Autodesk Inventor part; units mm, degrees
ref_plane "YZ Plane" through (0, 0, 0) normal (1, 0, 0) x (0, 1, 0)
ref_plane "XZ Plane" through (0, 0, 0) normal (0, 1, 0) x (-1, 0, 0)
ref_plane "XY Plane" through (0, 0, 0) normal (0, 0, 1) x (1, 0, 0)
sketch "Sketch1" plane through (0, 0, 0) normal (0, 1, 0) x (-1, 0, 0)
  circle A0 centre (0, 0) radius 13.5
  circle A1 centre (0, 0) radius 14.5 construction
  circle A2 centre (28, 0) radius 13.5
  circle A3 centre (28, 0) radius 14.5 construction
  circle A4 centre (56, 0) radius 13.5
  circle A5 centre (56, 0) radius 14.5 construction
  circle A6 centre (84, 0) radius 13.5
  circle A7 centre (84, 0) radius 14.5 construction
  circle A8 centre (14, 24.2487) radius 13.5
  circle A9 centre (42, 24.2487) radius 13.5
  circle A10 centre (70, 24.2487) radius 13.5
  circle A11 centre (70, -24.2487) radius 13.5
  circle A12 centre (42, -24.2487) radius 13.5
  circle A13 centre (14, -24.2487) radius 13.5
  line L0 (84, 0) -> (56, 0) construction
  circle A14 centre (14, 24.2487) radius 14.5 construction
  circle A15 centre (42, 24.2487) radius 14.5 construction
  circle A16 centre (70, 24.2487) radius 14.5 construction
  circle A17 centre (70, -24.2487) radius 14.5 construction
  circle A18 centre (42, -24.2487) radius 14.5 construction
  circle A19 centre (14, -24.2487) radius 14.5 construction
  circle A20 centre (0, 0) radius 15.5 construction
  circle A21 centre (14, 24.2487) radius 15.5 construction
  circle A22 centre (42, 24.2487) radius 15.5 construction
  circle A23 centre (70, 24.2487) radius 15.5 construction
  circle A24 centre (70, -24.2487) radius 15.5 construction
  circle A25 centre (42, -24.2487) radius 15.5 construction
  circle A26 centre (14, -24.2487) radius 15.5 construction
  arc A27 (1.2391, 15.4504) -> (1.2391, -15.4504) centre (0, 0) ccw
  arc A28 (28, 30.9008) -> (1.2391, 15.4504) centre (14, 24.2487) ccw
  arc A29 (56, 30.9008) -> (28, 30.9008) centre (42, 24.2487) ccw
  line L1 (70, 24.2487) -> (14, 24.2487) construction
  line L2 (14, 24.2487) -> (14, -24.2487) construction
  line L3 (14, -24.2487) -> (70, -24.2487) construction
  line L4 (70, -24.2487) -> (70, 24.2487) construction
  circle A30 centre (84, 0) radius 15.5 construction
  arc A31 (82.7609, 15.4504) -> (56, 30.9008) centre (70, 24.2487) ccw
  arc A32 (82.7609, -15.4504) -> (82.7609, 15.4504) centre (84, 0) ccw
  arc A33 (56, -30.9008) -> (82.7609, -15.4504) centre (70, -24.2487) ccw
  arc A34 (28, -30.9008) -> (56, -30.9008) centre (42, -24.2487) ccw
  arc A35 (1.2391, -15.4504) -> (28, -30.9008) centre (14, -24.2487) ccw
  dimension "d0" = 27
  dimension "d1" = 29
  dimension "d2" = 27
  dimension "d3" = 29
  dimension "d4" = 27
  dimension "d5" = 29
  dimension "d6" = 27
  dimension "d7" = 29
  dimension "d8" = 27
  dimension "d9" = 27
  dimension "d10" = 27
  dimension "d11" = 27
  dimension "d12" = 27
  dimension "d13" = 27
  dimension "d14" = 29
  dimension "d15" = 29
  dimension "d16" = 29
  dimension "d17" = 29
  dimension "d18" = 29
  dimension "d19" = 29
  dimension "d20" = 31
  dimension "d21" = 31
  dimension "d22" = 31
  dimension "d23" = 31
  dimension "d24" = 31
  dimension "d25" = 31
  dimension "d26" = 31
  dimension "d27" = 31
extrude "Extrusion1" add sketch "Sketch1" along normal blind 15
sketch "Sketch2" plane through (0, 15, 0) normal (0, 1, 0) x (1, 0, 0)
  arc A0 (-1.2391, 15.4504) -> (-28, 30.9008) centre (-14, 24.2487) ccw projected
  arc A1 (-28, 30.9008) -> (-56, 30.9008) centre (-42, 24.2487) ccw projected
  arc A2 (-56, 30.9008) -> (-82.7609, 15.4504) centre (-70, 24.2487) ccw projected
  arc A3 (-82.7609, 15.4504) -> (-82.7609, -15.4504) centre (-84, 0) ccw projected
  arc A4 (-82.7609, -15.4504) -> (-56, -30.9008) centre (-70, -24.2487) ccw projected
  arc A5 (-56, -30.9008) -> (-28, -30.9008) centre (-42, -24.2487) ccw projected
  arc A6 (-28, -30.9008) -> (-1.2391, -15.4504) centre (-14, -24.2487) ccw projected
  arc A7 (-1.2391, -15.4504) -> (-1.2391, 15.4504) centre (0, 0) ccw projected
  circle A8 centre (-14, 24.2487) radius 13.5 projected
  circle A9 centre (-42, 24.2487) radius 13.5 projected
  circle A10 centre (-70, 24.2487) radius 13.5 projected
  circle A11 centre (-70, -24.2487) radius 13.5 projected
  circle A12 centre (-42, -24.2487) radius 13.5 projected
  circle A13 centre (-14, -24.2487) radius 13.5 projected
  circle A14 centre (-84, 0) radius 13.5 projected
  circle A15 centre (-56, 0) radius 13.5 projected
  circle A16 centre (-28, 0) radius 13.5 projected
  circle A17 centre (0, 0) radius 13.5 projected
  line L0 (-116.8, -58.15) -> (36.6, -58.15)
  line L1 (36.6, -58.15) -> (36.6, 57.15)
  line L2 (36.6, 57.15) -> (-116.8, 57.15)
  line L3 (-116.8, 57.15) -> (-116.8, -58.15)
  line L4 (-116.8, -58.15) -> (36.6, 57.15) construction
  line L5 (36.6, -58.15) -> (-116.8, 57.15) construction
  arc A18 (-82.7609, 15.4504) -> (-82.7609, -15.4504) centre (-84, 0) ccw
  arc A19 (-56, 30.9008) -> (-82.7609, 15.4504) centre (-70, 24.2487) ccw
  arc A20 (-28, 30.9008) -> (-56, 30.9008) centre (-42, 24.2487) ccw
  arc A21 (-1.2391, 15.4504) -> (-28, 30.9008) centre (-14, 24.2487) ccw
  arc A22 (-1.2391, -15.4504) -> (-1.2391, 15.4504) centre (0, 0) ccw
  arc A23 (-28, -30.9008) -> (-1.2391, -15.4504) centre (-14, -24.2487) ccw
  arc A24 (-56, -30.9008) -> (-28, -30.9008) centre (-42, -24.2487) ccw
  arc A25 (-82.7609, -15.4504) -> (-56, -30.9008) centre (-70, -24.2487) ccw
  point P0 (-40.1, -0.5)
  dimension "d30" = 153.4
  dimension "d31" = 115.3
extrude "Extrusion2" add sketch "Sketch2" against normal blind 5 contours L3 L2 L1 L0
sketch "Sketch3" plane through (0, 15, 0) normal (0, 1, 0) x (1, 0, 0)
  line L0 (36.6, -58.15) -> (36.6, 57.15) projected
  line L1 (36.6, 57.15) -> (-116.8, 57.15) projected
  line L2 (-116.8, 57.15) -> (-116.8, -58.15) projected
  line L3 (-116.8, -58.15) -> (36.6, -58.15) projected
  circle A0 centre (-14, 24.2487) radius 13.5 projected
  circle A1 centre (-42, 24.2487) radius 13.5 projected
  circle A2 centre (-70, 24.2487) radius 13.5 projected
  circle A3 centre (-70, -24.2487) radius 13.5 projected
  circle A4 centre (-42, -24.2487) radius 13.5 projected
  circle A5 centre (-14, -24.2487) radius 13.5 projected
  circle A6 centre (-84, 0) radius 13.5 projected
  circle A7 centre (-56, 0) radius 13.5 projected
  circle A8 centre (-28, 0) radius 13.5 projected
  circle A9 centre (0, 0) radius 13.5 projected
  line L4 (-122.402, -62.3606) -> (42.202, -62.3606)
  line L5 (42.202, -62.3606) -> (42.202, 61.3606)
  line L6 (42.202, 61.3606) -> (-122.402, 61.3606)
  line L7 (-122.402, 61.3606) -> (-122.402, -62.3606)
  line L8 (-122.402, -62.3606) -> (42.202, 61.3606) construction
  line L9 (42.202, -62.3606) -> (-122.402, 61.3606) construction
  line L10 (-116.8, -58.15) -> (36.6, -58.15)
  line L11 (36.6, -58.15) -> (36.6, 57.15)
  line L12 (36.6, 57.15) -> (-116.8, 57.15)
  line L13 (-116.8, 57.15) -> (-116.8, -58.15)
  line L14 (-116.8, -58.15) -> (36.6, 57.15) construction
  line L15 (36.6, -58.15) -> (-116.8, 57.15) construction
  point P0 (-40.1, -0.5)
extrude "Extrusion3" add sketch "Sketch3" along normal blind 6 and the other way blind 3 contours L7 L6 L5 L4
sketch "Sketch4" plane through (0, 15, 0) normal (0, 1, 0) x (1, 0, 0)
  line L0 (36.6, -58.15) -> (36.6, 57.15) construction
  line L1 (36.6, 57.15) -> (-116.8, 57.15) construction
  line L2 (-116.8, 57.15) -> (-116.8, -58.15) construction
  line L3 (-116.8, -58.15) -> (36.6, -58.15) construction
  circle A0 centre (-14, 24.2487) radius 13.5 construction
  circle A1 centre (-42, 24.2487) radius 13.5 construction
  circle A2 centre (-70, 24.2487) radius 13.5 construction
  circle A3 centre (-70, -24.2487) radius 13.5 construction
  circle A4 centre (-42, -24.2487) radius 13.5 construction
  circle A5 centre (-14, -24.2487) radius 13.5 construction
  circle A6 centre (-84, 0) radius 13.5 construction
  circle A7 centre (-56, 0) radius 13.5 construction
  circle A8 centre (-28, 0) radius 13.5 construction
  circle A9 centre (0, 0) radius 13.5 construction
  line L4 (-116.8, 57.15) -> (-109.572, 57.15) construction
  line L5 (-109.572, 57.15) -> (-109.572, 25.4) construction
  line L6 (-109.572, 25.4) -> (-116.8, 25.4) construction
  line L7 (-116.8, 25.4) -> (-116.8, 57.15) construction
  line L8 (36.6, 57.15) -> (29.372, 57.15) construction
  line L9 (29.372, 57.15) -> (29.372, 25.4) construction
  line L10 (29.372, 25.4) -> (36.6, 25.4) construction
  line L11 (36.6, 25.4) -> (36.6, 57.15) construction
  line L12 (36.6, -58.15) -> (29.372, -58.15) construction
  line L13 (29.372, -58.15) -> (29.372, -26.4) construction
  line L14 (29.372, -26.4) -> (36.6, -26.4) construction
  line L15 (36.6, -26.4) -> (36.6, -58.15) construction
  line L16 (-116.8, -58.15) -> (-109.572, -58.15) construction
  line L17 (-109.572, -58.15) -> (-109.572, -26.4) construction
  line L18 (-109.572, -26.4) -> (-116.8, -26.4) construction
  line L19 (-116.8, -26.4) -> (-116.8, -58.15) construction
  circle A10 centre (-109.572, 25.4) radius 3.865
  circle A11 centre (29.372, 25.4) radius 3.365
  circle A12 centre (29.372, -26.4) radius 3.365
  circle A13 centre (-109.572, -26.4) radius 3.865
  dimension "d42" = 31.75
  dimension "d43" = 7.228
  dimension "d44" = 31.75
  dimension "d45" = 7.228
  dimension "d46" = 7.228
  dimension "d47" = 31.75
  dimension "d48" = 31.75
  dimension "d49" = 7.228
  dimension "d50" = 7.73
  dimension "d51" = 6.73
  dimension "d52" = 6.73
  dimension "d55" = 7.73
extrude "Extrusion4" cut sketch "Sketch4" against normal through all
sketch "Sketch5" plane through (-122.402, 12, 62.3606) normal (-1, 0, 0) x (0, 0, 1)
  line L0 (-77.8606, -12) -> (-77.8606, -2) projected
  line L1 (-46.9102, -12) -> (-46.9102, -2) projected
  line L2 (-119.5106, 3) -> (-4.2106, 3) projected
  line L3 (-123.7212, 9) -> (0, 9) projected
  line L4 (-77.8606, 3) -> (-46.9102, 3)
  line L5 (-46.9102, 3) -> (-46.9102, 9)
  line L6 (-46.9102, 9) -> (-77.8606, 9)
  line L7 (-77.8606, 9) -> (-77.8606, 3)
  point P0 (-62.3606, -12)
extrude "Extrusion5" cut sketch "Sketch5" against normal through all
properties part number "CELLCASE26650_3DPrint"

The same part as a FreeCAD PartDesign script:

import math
import FreeCAD as App
import Part
import Sketcher

doc = App.newDocument("Part")
body = doc.addObject("PartDesign::Body", "Body")

sketch1 = doc.addObject("Sketcher::SketchObject", "Sketch")
body.addObject(sketch1)
sketch1.AttachmentSupport = (doc.XZ_Plane, [""])
sketch1.MapMode = "FlatFace"
sketch1.addGeometry([
    Part.ArcOfCircle(Part.Circle(App.Vector(-14, 24, 0), App.Vector(0, 0, 1), 16), math.radians(-35), math.radians(155)),
    Part.ArcOfCircle(Part.Circle(App.Vector(0, 0, 0), App.Vector(0, 0, 1), 16), math.radians(-95), math.radians(95)),
    Part.ArcOfCircle(Part.Circle(App.Vector(-14, -24, 0), App.Vector(0, 0, 1), 16), math.radians(-155), math.radians(35)),
    Part.ArcOfCircle(Part.Circle(App.Vector(-42, -24, 0), App.Vector(0, 0, 1), 16), math.radians(-155), math.radians(-25)),
    Part.ArcOfCircle(Part.Circle(App.Vector(-70, -24, 0), App.Vector(0, 0, 1), 16), math.radians(145), math.radians(335)),
    Part.ArcOfCircle(Part.Circle(App.Vector(-84, 0, 0), App.Vector(0, 0, 1), 16), math.radians(85), math.radians(275)),
    Part.ArcOfCircle(Part.Circle(App.Vector(-70, 24, 0), App.Vector(0, 0, 1), 16), math.radians(25), math.radians(215)),
    Part.ArcOfCircle(Part.Circle(App.Vector(-42, 24, 0), App.Vector(0, 0, 1), 16), math.radians(25), math.radians(155)),
    Part.Circle(App.Vector(-14, -24, 0), App.Vector(0, 0, 1), 14),
    Part.Circle(App.Vector(-42, -24, 0), App.Vector(0, 0, 1), 14),
    Part.Circle(App.Vector(0, 0, 0), App.Vector(0, 0, 1), 14),
    Part.Circle(App.Vector(-28, 0, 0), App.Vector(0, 0, 1), 14),
    Part.Circle(App.Vector(-70, -24, 0), App.Vector(0, 0, 1), 14),
    Part.Circle(App.Vector(-56, 0, 0), App.Vector(0, 0, 1), 14),
    Part.Circle(App.Vector(-84, 0, 0), App.Vector(0, 0, 1), 14),
    Part.Circle(App.Vector(-14, 24, 0), App.Vector(0, 0, 1), 14),
    Part.Circle(App.Vector(-42, 24, 0), App.Vector(0, 0, 1), 14),
    Part.Circle(App.Vector(-70, 24, 0), App.Vector(0, 0, 1), 14),
], False)
sketch1.addConstraint([
    Sketcher.Constraint("Coincident", 0, 1, 1, 2),
    Sketcher.Constraint("Coincident", 1, 1, 2, 2),
    Sketcher.Constraint("Coincident", 2, 1, 3, 2),
    Sketcher.Constraint("Coincident", 3, 1, 4, 2),
    Sketcher.Constraint("Coincident", 4, 1, 5, 2),
    Sketcher.Constraint("Coincident", 5, 1, 6, 2),
    Sketcher.Constraint("Coincident", 6, 1, 7, 2),
    Sketcher.Constraint("Coincident", 7, 1, 0, 2),
    Sketcher.Constraint("Coincident", 1, 3, -1, 1),
    Sketcher.Constraint("Coincident", 10, 3, -1, 1),
    Sketcher.Constraint("Coincident", 8, 3, 2, 3),
    Sketcher.Constraint("Coincident", 9, 3, 3, 3),
    Sketcher.Constraint("Coincident", 12, 3, 4, 3),
    Sketcher.Constraint("Coincident", 14, 3, 5, 3),
    Sketcher.Constraint("Coincident", 15, 3, 0, 3),
    Sketcher.Constraint("Coincident", 16, 3, 7, 3),
    Sketcher.Constraint("Coincident", 17, 3, 6, 3),
    Sketcher.Constraint("Equal", 0, 1),
    Sketcher.Constraint("Equal", 1, 2),
    Sketcher.Constraint("Equal", 2, 3),
    Sketcher.Constraint("Equal", 3, 4),
    Sketcher.Constraint("Equal", 4, 5),
    Sketcher.Constraint("Equal", 5, 6),
    Sketcher.Constraint("Equal", 6, 7),
    Sketcher.Constraint("Equal", 8, 9),
    Sketcher.Constraint("Equal", 9, 10),
    Sketcher.Constraint("Equal", 10, 11),
    Sketcher.Constraint("Equal", 11, 12),
    Sketcher.Constraint("Equal", 12, 13),
    Sketcher.Constraint("Equal", 13, 14),
    Sketcher.Constraint("Equal", 14, 15),
    Sketcher.Constraint("Equal", 15, 16),
    Sketcher.Constraint("Equal", 16, 17),
    Sketcher.Constraint("Symmetric", 0, 3, 2, 3, -1),
    Sketcher.Constraint("Symmetric", 4, 3, 6, 3, -1),
    Sketcher.Constraint("Symmetric", 3, 3, 7, 3, -1),
    Sketcher.Constraint("PointOnObject", 5, 3, -1),
    Sketcher.Constraint("PointOnObject", 11, 3, -1),
    Sketcher.Constraint("PointOnObject", 13, 3, -1),
    Sketcher.Constraint("Horizontal", 2, 3, 3, 3),
    Sketcher.Constraint("Horizontal", 3, 3, 4, 3),
    Sketcher.Constraint("Horizontal", 2, 1, 3, 1),
    Sketcher.Constraint("Horizontal", 1, 1, 4, 1),
    Sketcher.Constraint("Vertical", 11, 3, 2, 1),
    Sketcher.Constraint("Vertical", 13, 3, 3, 1),
    Sketcher.Constraint("Diameter", 8, 27.0),
    Sketcher.Constraint("Radius", 0, 15.5),
    Sketcher.Constraint("DistanceX", 0, 3, -1, 1, 14.0),
    Sketcher.Constraint("DistanceX", 3, 3, -1, 1, 42.0),
    Sketcher.Constraint("DistanceX", 0, 1, -1, 1, 1.239),
])
pad1 = doc.addObject("PartDesign::Pad", "Pad")
body.addObject(pad1)
pad1.Profile = sketch1
pad1.Length = 15
pad1.Reversed = True

sketch2 = doc.addObject("Sketcher::SketchObject", "Sketch001")
body.addObject(sketch2)
sketch2.AttachmentSupport = (doc.XZ_Plane, [""])
sketch2.MapMode = "FlatFace"
sketch2.AttachmentOffset = App.Placement(App.Vector(0, 0, -15), App.Rotation())
sketch2.addGeometry([
    Part.LineSegment(App.Vector(-117, -57, 0), App.Vector(-117, 58, 0)),
    Part.LineSegment(App.Vector(-117, 58, 0), App.Vector(37, 58, 0)),
    Part.LineSegment(App.Vector(37, 58, 0), App.Vector(37, -57, 0)),
    Part.LineSegment(App.Vector(37, -57, 0), App.Vector(-117, -57, 0)),
    Part.ArcOfCircle(Part.Circle(App.Vector(-14, -24, 0), App.Vector(0, 0, 1), 16), math.radians(-155), math.radians(35)),
    Part.ArcOfCircle(Part.Circle(App.Vector(0, 0, 0), App.Vector(0, 0, 1), 16), math.radians(-95), math.radians(95)),
    Part.ArcOfCircle(Part.Circle(App.Vector(-14, 24, 0), App.Vector(0, 0, 1), 16), math.radians(-35), math.radians(155)),
    Part.ArcOfCircle(Part.Circle(App.Vector(-42, 24, 0), App.Vector(0, 0, 1), 16), math.radians(25), math.radians(155)),
    Part.ArcOfCircle(Part.Circle(App.Vector(-70, 24, 0), App.Vector(0, 0, 1), 16), math.radians(25), math.radians(215)),
    Part.ArcOfCircle(Part.Circle(App.Vector(-84, 0, 0), App.Vector(0, 0, 1), 16), math.radians(85), math.radians(275)),
    Part.ArcOfCircle(Part.Circle(App.Vector(-70, -24, 0), App.Vector(0, 0, 1), 16), math.radians(145), math.radians(335)),
    Part.ArcOfCircle(Part.Circle(App.Vector(-42, -24, 0), App.Vector(0, 0, 1), 16), math.radians(-155), math.radians(-25)),
], False)
sketch2.addConstraint([
    Sketcher.Constraint("Coincident", 0, 2, 1, 1),
    Sketcher.Constraint("Coincident", 1, 2, 2, 1),
    Sketcher.Constraint("Coincident", 2, 2, 3, 1),
    Sketcher.Constraint("Coincident", 3, 2, 0, 1),
    Sketcher.Constraint("Coincident", 4, 2, 5, 1),
    Sketcher.Constraint("Coincident", 5, 2, 6, 1),
    Sketcher.Constraint("Coincident", 6, 2, 7, 1),
    Sketcher.Constraint("Coincident", 7, 2, 8, 1),
    Sketcher.Constraint("Coincident", 8, 2, 9, 1),
    Sketcher.Constraint("Coincident", 9, 2, 10, 1),
    Sketcher.Constraint("Coincident", 10, 2, 11, 1),
    Sketcher.Constraint("Coincident", 11, 2, 4, 1),
    Sketcher.Constraint("Vertical", 0),
    Sketcher.Constraint("Horizontal", 1),
    Sketcher.Constraint("Vertical", 2),
    Sketcher.Constraint("Horizontal", 3),
    Sketcher.Constraint("Coincident", 5, 3, -1, 1),
    Sketcher.Constraint("Equal", 4, 5),
    Sketcher.Constraint("Equal", 5, 6),
    Sketcher.Constraint("Equal", 6, 7),
    Sketcher.Constraint("Equal", 7, 8),
    Sketcher.Constraint("Equal", 8, 9),
    Sketcher.Constraint("Equal", 9, 10),
    Sketcher.Constraint("Equal", 10, 11),
    Sketcher.Constraint("Symmetric", 4, 3, 6, 3, -1),
    Sketcher.Constraint("Symmetric", 8, 3, 10, 3, -1),
    Sketcher.Constraint("Symmetric", 7, 3, 11, 3, -1),
    Sketcher.Constraint("PointOnObject", 9, 3, -1),
    Sketcher.Constraint("Horizontal", 6, 3, 7, 3),
    Sketcher.Constraint("Horizontal", 7, 3, 8, 3),
    Sketcher.Constraint("Horizontal", 6, 2, 7, 2),
    Sketcher.Constraint("Horizontal", 5, 2, 8, 2),
    Sketcher.Constraint("DistanceX", 1, 1, 1, 2, 153.4),
    Sketcher.Constraint("DistanceY", 0, 1, 0, 2, 115.3),
    Sketcher.Constraint("Radius", 4, 15.5),
    Sketcher.Constraint("DistanceX", 4, 3, -1, 1, 14.0),
    Sketcher.Constraint("DistanceX", 7, 3, -1, 1, 42.0),
    Sketcher.Constraint("DistanceX", 0, 2, -1, 1, 116.8),
    Sketcher.Constraint("DistanceY", -1, 1, 0, 2, 58.15),
    Sketcher.Constraint("DistanceX", 4, 2, -1, 1, 1.239),
])
pad2 = doc.addObject("PartDesign::Pad", "Pad001")
body.addObject(pad2)
pad2.Profile = sketch2
pad2.Length = 5

sketch3 = doc.addObject("Sketcher::SketchObject", "Sketch002")
body.addObject(sketch3)
sketch3.AttachmentSupport = (doc.XZ_Plane, [""])
sketch3.MapMode = "FlatFace"
sketch3.AttachmentOffset = App.Placement(App.Vector(0, 0, -15), App.Rotation())
sketch3.addGeometry([
    Part.LineSegment(App.Vector(-122, -61, 0), App.Vector(-122, 62, 0)),
    Part.LineSegment(App.Vector(-122, 62, 0), App.Vector(42, 62, 0)),
    Part.LineSegment(App.Vector(42, 62, 0), App.Vector(42, -61, 0)),
    Part.LineSegment(App.Vector(42, -61, 0), App.Vector(-122, -61, 0)),
    Part.LineSegment(App.Vector(37, -57, 0), App.Vector(37, 58, 0)),
    Part.LineSegment(App.Vector(37, 58, 0), App.Vector(-117, 58, 0)),
    Part.LineSegment(App.Vector(-117, 58, 0), App.Vector(-117, -57, 0)),
    Part.LineSegment(App.Vector(-117, -57, 0), App.Vector(37, -57, 0)),
], False)
sketch3.addConstraint([
    Sketcher.Constraint("Coincident", 0, 2, 1, 1),
    Sketcher.Constraint("Coincident", 1, 2, 2, 1),
    Sketcher.Constraint("Coincident", 2, 2, 3, 1),
    Sketcher.Constraint("Coincident", 3, 2, 0, 1),
    Sketcher.Constraint("Coincident", 4, 2, 5, 1),
    Sketcher.Constraint("Coincident", 5, 2, 6, 1),
    Sketcher.Constraint("Coincident", 6, 2, 7, 1),
    Sketcher.Constraint("Coincident", 7, 2, 4, 1),
    Sketcher.Constraint("Vertical", 0),
    Sketcher.Constraint("Horizontal", 1),
    Sketcher.Constraint("Vertical", 2),
    Sketcher.Constraint("Horizontal", 3),
    Sketcher.Constraint("Vertical", 4),
    Sketcher.Constraint("Horizontal", 5),
    Sketcher.Constraint("Vertical", 6),
    Sketcher.Constraint("Horizontal", 7),
    Sketcher.Constraint("DistanceX", 5, 2, 5, 1, 153.4),
    Sketcher.Constraint("DistanceY", 4, 1, 4, 2, 115.3),
    Sketcher.Constraint("DistanceX", -1, 1, 4, 2, 36.6),
    Sketcher.Constraint("DistanceX", 1, 1, 1, 2, 164.604),
    Sketcher.Constraint("DistanceY", -1, 1, 4, 2, 58.15),
    Sketcher.Constraint("DistanceY", 0, 1, 0, 2, 123.7212),
    Sketcher.Constraint("DistanceX", 0, 2, -1, 1, 122.402),
    Sketcher.Constraint("DistanceY", -1, 1, 0, 2, 62.3606),
])
pad3 = doc.addObject("PartDesign::Pad", "Pad002")
body.addObject(pad3)
pad3.Profile = sketch3
pad3.Type = "TwoLengths"
pad3.Length = 6
pad3.Length2 = 3
pad3.Reversed = True

sketch4 = doc.addObject("Sketcher::SketchObject", "Sketch003")
body.addObject(sketch4)
sketch4.AttachmentSupport = (doc.XZ_Plane, [""])
sketch4.MapMode = "FlatFace"
sketch4.AttachmentOffset = App.Placement(App.Vector(0, 0, -15), App.Rotation())
sketch4.addGeometry([
    Part.Circle(App.Vector(-109.6, -25.4, 0), App.Vector(0, 0, 1), 3.9),
    Part.Circle(App.Vector(29.4, -25.4, 0), App.Vector(0, 0, 1), 3.4),
    Part.Circle(App.Vector(29.4, 26.4, 0), App.Vector(0, 0, 1), 3.4),
    Part.Circle(App.Vector(-109.6, 26.4, 0), App.Vector(0, 0, 1), 3.9),
], False)
sketch4.addConstraint([
    Sketcher.Constraint("Equal", 1, 2),
    Sketcher.Constraint("Equal", 0, 3),
    Sketcher.Constraint("Horizontal", 0, 3, 1, 3),
    Sketcher.Constraint("Horizontal", 2, 3, 3, 3),
    Sketcher.Constraint("Vertical", 1, 3, 2, 3),
    Sketcher.Constraint("Vertical", 0, 3, 3, 3),
    Sketcher.Constraint("Diameter", 0, 7.73),
    Sketcher.Constraint("Diameter", 1, 6.73),
    Sketcher.Constraint("DistanceY", 0, 3, -1, 1, 25.4),
    Sketcher.Constraint("DistanceY", -1, 1, 2, 3, 26.4),
    Sketcher.Constraint("DistanceX", 0, 3, -1, 1, 109.572),
    Sketcher.Constraint("DistanceX", -1, 1, 1, 3, 29.372),
])
pocket1 = doc.addObject("PartDesign::Pocket", "Pocket")
body.addObject(pocket1)
pocket1.Profile = sketch4
pocket1.Type = "ThroughAll"
pocket1.Reversed = True

sketch5 = doc.addObject("Sketcher::SketchObject", "Sketch004")
body.addObject(sketch5)
sketch5.AttachmentSupport = (doc.YZ_Plane, [""])
sketch5.MapMode = "FlatFace"
sketch5.AttachmentOffset = App.Placement(App.Vector(0, 0, -122.402), App.Rotation())
sketch5.addGeometry([
    Part.LineSegment(App.Vector(21, -16, 0), App.Vector(15, -16, 0)),
    Part.LineSegment(App.Vector(15, -16, 0), App.Vector(15, 15, 0)),
    Part.LineSegment(App.Vector(15, 15, 0), App.Vector(21, 15, 0)),
    Part.LineSegment(App.Vector(21, 15, 0), App.Vector(21, -16, 0)),
], False)
sketch5.addConstraint([
    Sketcher.Constraint("Coincident", 0, 2, 1, 1),
    Sketcher.Constraint("Coincident", 1, 2, 2, 1),
    Sketcher.Constraint("Coincident", 2, 2, 3, 1),
    Sketcher.Constraint("Coincident", 3, 2, 0, 1),
    Sketcher.Constraint("Horizontal", 0),
    Sketcher.Constraint("Vertical", 1),
    Sketcher.Constraint("Horizontal", 2),
    Sketcher.Constraint("Vertical", 3),
    Sketcher.Constraint("DistanceX", 0, 2, 0, 1, 6.0),
    Sketcher.Constraint("DistanceX", -1, 1, 0, 2, 15.0),
    Sketcher.Constraint("DistanceY", 0, 2, -1, 1, 15.5),
    Sketcher.Constraint("DistanceY", 1, 1, 1, 2, 30.9504),
])
pocket2 = doc.addObject("PartDesign::Pocket", "Pocket001")
body.addObject(pocket2)
pocket2.Profile = sketch5
pocket2.Type = "ThroughAll"
pocket2.Reversed = True

doc.recompute()
